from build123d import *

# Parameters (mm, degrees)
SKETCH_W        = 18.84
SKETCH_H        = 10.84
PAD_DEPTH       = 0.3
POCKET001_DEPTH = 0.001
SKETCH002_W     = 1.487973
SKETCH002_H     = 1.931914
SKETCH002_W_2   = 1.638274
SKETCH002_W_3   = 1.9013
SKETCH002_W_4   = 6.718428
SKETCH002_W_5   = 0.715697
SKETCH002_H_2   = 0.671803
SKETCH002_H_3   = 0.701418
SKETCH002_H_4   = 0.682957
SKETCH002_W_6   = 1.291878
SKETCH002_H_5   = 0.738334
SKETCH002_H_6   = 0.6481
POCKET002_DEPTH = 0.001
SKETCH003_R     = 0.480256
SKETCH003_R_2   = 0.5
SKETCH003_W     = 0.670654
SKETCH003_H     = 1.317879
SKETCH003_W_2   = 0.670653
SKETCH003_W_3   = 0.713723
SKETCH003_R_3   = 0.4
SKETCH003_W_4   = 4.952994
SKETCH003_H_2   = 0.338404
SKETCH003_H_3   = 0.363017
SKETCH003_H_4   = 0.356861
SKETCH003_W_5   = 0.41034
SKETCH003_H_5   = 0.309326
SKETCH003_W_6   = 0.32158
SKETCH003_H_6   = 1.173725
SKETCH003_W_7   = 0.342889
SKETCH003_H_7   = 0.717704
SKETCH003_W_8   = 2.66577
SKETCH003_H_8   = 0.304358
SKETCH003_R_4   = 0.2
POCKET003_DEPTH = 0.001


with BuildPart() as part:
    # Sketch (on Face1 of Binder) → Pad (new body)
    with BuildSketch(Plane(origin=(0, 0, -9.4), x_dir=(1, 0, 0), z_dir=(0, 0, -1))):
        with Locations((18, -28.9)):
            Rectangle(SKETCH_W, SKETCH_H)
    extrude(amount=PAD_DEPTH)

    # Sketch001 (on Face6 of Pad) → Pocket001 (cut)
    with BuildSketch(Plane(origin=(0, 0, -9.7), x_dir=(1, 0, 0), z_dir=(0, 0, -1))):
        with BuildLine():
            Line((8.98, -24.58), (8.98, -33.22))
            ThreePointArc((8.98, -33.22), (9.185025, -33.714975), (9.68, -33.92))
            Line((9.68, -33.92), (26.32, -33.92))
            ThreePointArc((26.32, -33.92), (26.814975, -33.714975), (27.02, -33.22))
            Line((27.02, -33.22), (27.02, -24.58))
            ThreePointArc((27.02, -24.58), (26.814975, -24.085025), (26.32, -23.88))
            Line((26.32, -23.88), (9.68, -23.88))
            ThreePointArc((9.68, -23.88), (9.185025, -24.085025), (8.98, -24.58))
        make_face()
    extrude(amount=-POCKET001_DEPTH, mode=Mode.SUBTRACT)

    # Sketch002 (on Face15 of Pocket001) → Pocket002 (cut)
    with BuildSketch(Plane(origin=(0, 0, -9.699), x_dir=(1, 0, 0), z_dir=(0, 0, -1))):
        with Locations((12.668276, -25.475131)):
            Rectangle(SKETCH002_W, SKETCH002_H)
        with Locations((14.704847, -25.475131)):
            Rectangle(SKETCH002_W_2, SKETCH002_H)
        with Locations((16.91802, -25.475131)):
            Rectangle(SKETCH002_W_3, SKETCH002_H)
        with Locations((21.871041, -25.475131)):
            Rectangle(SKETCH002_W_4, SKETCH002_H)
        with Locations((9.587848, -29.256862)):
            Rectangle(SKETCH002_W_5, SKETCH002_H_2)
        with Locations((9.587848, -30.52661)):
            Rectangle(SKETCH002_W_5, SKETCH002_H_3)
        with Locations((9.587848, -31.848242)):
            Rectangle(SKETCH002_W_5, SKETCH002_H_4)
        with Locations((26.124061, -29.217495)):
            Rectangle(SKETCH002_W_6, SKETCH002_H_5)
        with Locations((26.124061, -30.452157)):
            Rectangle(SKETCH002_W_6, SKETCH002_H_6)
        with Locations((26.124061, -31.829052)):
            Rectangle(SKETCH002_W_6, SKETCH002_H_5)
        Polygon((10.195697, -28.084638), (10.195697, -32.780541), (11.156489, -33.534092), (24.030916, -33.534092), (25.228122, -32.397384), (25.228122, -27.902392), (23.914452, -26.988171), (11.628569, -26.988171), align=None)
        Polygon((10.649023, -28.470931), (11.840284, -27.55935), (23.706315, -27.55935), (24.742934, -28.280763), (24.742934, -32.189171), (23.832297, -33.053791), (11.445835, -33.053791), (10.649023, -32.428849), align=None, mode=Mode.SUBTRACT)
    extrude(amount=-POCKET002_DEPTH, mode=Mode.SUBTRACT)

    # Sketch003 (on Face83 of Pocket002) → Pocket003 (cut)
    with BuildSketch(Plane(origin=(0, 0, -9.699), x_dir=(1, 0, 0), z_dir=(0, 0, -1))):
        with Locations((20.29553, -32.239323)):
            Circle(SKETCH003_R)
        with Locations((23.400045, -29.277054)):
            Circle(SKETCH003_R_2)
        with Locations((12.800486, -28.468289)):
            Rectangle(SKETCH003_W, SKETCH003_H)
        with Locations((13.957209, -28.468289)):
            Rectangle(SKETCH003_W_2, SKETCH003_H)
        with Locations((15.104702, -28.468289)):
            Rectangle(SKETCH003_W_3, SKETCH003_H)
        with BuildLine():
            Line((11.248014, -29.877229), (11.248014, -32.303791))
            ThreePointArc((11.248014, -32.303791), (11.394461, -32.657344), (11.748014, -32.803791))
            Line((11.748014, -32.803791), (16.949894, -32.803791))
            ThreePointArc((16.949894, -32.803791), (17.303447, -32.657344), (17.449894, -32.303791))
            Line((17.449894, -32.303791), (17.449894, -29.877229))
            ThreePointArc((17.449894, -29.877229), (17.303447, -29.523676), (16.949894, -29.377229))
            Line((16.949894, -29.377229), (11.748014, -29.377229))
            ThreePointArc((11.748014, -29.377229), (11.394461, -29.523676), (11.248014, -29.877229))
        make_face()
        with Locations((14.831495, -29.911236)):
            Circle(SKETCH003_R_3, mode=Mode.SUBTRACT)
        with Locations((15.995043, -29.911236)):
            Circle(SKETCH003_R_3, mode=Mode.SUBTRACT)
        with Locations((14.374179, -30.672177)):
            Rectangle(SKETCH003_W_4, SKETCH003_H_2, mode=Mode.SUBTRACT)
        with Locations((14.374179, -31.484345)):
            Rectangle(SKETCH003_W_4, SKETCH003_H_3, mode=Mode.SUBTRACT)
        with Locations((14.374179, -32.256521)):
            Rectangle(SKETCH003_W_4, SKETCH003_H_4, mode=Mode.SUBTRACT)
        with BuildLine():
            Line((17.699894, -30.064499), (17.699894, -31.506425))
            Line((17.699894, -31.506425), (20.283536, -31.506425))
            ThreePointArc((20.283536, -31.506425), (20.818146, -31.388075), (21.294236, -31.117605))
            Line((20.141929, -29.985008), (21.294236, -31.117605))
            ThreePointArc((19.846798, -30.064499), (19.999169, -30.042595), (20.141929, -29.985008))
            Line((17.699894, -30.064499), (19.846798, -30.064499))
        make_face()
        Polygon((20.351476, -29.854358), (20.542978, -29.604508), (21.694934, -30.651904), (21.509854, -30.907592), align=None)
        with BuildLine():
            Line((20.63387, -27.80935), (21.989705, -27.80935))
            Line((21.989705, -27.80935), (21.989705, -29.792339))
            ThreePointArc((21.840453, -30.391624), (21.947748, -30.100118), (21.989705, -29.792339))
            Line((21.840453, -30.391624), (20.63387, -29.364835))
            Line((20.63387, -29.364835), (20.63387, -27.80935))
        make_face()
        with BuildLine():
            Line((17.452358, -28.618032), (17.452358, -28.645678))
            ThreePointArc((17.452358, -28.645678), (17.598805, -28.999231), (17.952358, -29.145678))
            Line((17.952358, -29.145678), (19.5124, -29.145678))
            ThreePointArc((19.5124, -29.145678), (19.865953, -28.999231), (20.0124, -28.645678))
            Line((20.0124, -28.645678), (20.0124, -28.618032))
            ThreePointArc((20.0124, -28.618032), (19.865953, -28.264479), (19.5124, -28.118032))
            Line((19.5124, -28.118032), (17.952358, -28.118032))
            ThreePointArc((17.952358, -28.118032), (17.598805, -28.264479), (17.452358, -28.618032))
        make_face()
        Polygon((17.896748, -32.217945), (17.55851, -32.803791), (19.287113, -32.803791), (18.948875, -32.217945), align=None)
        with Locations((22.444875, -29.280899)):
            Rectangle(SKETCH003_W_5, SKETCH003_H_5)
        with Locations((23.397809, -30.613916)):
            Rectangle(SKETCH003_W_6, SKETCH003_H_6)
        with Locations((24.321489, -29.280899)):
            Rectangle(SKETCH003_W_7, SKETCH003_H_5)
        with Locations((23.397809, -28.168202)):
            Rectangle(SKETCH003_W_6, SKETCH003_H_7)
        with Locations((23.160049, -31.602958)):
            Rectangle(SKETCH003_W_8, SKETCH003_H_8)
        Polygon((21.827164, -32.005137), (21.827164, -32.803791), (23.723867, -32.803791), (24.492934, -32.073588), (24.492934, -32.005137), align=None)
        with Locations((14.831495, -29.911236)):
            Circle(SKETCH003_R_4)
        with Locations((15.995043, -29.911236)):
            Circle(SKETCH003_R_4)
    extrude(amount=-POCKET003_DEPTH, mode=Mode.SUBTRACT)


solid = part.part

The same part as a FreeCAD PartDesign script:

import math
import FreeCAD as App
import Part
import Sketcher

V = App.Vector

doc = App.newDocument("Part")
body = doc.addObject("PartDesign::Body", "Body")

# Sketch on XY plane
sketch1 = body.newObject("Sketcher::SketchObject", "Sketch")
sketch1.AttachmentSupport = (doc.getObject("XY_Plane"), [""])
sketch1.MapMode = "FlatFace"
sketch1.AttachmentOffset = App.Placement(V(0, 0, -9.4), App.Rotation())
sketch1.addGeometry([
    Part.LineSegment(V(8.58, 23.48, 0), V(8.58, 34.32, 0)),
    Part.LineSegment(V(8.58, 34.32, 0), V(27.42, 34.32, 0)),
    Part.LineSegment(V(27.42, 34.32, 0), V(27.42, 23.48, 0)),
    Part.LineSegment(V(27.42, 23.48, 0), V(8.58, 23.48, 0)),
], False)
sketch1.addConstraint([
    Sketcher.Constraint("Coincident", 0, 2, 1, 1),
    Sketcher.Constraint("Coincident", 1, 2, 2, 1),
    Sketcher.Constraint("Coincident", 2, 2, 3, 1),
    Sketcher.Constraint("Coincident", 3, 2, 0, 1),
    Sketcher.Constraint("Vertical", 0),
    Sketcher.Constraint("Horizontal", 1),
    Sketcher.Constraint("Vertical", 2),
    Sketcher.Constraint("Horizontal", 3),
    Sketcher.Constraint("DistanceX", 1, 1, 1, 2, 18.84),
    Sketcher.Constraint("DistanceY", 0, 1, 0, 2, 10.84),
    Sketcher.Constraint("DistanceX", -1, 1, 0, 2, 8.58),
    Sketcher.Constraint("DistanceY", -1, 1, 0, 2, 34.32),
])
pad1 = body.newObject("PartDesign::Pad", "Pad")
pad1.Profile = sketch1
pad1.Length = 0.3
pad1.Reversed = True

# Sketch on XY plane
sketch2 = body.newObject("Sketcher::SketchObject", "Sketch001")
sketch2.AttachmentSupport = (doc.getObject("XY_Plane"), [""])
sketch2.MapMode = "FlatFace"
sketch2.AttachmentOffset = App.Placement(V(0, 0, -9.7), App.Rotation())
sketch2.addGeometry([
    Part.LineSegment(V(8.98, 24.58, 0), V(8.98, 33.22, 0)),  # 0
    Part.ArcOfCircle(Part.Circle(V(9.679999, 33.220001, 0), V(0, 0, 1), 0.699999), math.radians(89.999929), math.radians(180.000071)),  # 1
    Part.LineSegment(V(9.68, 33.92, 0), V(26.32, 33.92, 0)),  # 2
    Part.ArcOfCircle(Part.Circle(V(26.320001, 33.220001, 0), V(0, 0, 1), 0.699999), math.radians(-0.000071), math.radians(90.000071)),  # 3
    Part.LineSegment(V(27.02, 33.22, 0), V(27.02, 24.58, 0)),  # 4
    Part.ArcOfCircle(Part.Circle(V(26.320001, 24.579999, 0), V(0, 0, 1), 0.699999), math.radians(-90.000071), math.radians(0.000071)),  # 5
    Part.LineSegment(V(26.32, 23.88, 0), V(9.68, 23.88, 0)),  # 6
    Part.ArcOfCircle(Part.Circle(V(9.679999, 24.579999, 0), V(0, 0, 1), 0.699999), math.radians(179.999929), math.radians(270.000071)),  # 7
], False)
sketch2.addConstraint([
    Sketcher.Constraint("Tangent", 0, 2, 1, 2),
    Sketcher.Constraint("Tangent", 1, 1, 2, 1),
    Sketcher.Constraint("Tangent", 2, 2, 3, 2),
    Sketcher.Constraint("Tangent", 3, 1, 4, 1),
    Sketcher.Constraint("Tangent", 4, 2, 5, 2),
    Sketcher.Constraint("Tangent", 5, 1, 6, 1),
    Sketcher.Constraint("Tangent", 6, 2, 7, 2),
    Sketcher.Constraint("Tangent", 7, 1, 0, 1),
    Sketcher.Constraint("Vertical", 0),
    Sketcher.Constraint("Horizontal", 2),
    Sketcher.Constraint("Vertical", 4),
    Sketcher.Constraint("Horizontal", 6),
    Sketcher.Constraint("Equal", 1, 3),
    Sketcher.Constraint("Equal", 3, 5),
    Sketcher.Constraint("Equal", 5, 7),
    Sketcher.Constraint("Radius", 1, 0.699999),
    Sketcher.Constraint("DistanceX", 2, 1, 2, 2, 16.64),
    Sketcher.Constraint("DistanceY", 0, 1, 0, 2, 8.64),
    Sketcher.Constraint("DistanceX", -1, 1, 1, 3, 9.679999),
    Sketcher.Constraint("DistanceY", -1, 1, 1, 3, 33.220001),
])
pocket1 = body.newObject("PartDesign::Pocket", "Pocket")
pocket1.Profile = sketch2
pocket1.Length = 0.001
pocket1.Reversed = True

# Sketch on XY plane
sketch3 = body.newObject("Sketcher::SketchObject", "Sketch002")
sketch3.AttachmentSupport = (doc.getObject("XY_Plane"), [""])
sketch3.MapMode = "FlatFace"
sketch3.AttachmentOffset = App.Placement(V(0, 0, -9.699), App.Rotation())
sketch3.addGeometry([
    Part.LineSegment(V(11.92429, 24.509174, 0), V(11.92429, 26.441088, 0)),  # 0
    Part.LineSegment(V(11.92429, 26.441088, 0), V(13.412263, 26.441088, 0)),  # 1
    Part.LineSegment(V(13.412263, 26.441088, 0), V(13.412263, 24.509174, 0)),  # 2
    Part.LineSegment(V(13.412263, 24.509174, 0), V(11.92429, 24.509174, 0)),  # 3
    Part.LineSegment(V(13.88571, 24.509174, 0), V(13.88571, 26.441088, 0)),  # 4
    Part.LineSegment(V(13.88571, 26.441088, 0), V(15.523984, 26.441088, 0)),  # 5
    Part.LineSegment(V(15.523984, 26.441088, 0), V(15.523984, 24.509174, 0)),  # 6
    Part.LineSegment(V(15.523984, 24.509174, 0), V(13.88571, 24.509174, 0)),  # 7
    Part.LineSegment(V(15.96737, 24.509174, 0), V(15.96737, 26.441088, 0)),  # 8
    Part.LineSegment(V(15.96737, 26.441088, 0), V(17.86867, 26.441088, 0)),  # 9
    Part.LineSegment(V(17.86867, 26.441088, 0), V(17.86867, 24.509174, 0)),  # 10
    Part.LineSegment(V(17.86867, 24.509174, 0), V(15.96737, 24.509174, 0)),  # 11
    Part.LineSegment(V(18.511827, 24.509174, 0), V(18.511827, 26.441088, 0)),  # 12
    Part.LineSegment(V(18.511827, 26.441088, 0), V(25.230255, 26.441088, 0)),  # 13
    Part.LineSegment(V(25.230255, 26.441088, 0), V(25.230255, 24.509174, 0)),  # 14
    Part.LineSegment(V(25.230255, 24.509174, 0), V(18.511827, 24.509174, 0)),  # 15
    Part.LineSegment(V(9.229999, 28.92096, 0), V(9.229999, 29.592764, 0)),  # 16
    Part.LineSegment(V(9.229999, 29.592764, 0), V(9.945697, 29.592764, 0)),  # 17
    Part.LineSegment(V(9.945697, 29.592764, 0), V(9.945697, 28.92096, 0)),  # 18
    Part.LineSegment(V(9.945697, 28.92096, 0), V(9.229999, 28.92096, 0)),  # 19
    Part.LineSegment(V(9.229999, 30.175901, 0), V(9.229999, 30.877319, 0)),  # 20
    Part.LineSegment(V(9.229999, 30.877319, 0), V(9.945697, 30.877319, 0)),  # 21
    Part.LineSegment(V(9.945697, 30.877319, 0), V(9.945697, 30.175901, 0)),  # 22
    Part.LineSegment(V(9.945697, 30.175901, 0), V(9.229999, 30.175901, 0)),  # 23
    Part.LineSegment(V(9.229999, 31.506764, 0), V(9.229999, 32.18972, 0)),  # 24
    Part.LineSegment(V(9.229999, 32.18972, 0), V(9.945697, 32.18972, 0)),  # 25
    Part.LineSegment(V(9.945697, 32.18972, 0), V(9.945697, 31.506764, 0)),  # 26
    Part.LineSegment(V(9.945697, 31.506764, 0), V(9.229999, 31.506764, 0)),  # 27
    Part.LineSegment(V(25.478122, 28.848328, 0), V(25.478122, 29.586662, 0)),  # 28
    Part.LineSegment(V(25.478122, 29.586662, 0), V(26.77, 29.586662, 0)),  # 29
    Part.LineSegment(V(26.77, 29.586662, 0), V(26.77, 28.848328, 0)),  # 30
    Part.LineSegment(V(26.77, 28.848328, 0), V(25.478122, 28.848328, 0)),  # 31
    Part.LineSegment(V(25.478122, 30.128107, 0), V(25.478122, 30.776207, 0)),  # 32
    Part.LineSegment(V(25.478122, 30.776207, 0), V(26.77, 30.776207, 0)),  # 33
    Part.LineSegment(V(26.77, 30.776207, 0), V(26.77, 30.128107, 0)),  # 34
    Part.LineSegment(V(26.77, 30.128107, 0), V(25.478122, 30.128107, 0)),  # 35
    Part.LineSegment(V(25.478122, 31.459885, 0), V(25.478122, 32.198219, 0)),  # 36
    Part.LineSegment(V(25.478122, 32.198219, 0), V(26.77, 32.198219, 0)),  # 37
    Part.LineSegment(V(26.77, 32.198219, 0), V(26.77, 31.459885, 0)),  # 38
    Part.LineSegment(V(26.77, 31.459885, 0), V(25.478122, 31.459885, 0)),  # 39
    Part.LineSegment(V(10.195697, 28.084638, 0), V(10.195697, 32.780541, 0)),  # 40
    Part.LineSegment(V(10.195697, 32.780541, 0), V(11.156489, 33.534092, 0)),  # 41
    Part.LineSegment(V(11.156489, 33.534092, 0), V(24.030916, 33.534092, 0)),  # 42
    Part.LineSegment(V(24.030916, 33.534092, 0), V(25.228122, 32.397384, 0)),  # 43
    Part.LineSegment(V(25.228122, 32.397384, 0), V(25.228122, 27.902392, 0)),  # 44
    Part.LineSegment(V(25.228122, 27.902392, 0), V(23.914452, 26.988171, 0)),  # 45
    Part.LineSegment(V(23.914452, 26.988171, 0), V(11.628569, 26.988171, 0)),  # 46
    Part.LineSegment(V(11.628569, 26.988171, 0), V(10.195697, 28.084638, 0)),  # 47
    Part.LineSegment(V(10.649023, 32.428849, 0), V(10.649023, 28.470931, 0)),  # 48
    Part.LineSegment(V(10.649023, 28.470931, 0), V(11.840284, 27.55935, 0)),  # 49
    Part.LineSegment(V(11.840284, 27.55935, 0), V(23.706315, 27.55935, 0)),  # 50
    Part.LineSegment(V(23.706315, 27.55935, 0), V(24.742934, 28.280763, 0)),  # 51
    Part.LineSegment(V(24.742934, 28.280763, 0), V(24.742934, 32.189171, 0)),  # 52
    Part.LineSegment(V(24.742934, 32.189171, 0), V(23.832297, 33.053791, 0)),  # 53
    Part.LineSegment(V(23.832297, 33.053791, 0), V(11.445835, 33.053791, 0)),  # 54
    Part.LineSegment(V(11.445835, 33.053791, 0), V(10.649023, 32.428849, 0)),  # 55
], False)
sketch3.addConstraint([
    Sketcher.Constraint("Coincident", 0, 2, 1, 1),
    Sketcher.Constraint("Coincident", 1, 2, 2, 1),
    Sketcher.Constraint("Coincident", 2, 2, 3, 1),
    Sketcher.Constraint("Coincident", 3, 2, 0, 1),
    Sketcher.Constraint("Coincident", 4, 2, 5, 1),
    Sketcher.Constraint("Coincident", 5, 2, 6, 1),
    Sketcher.Constraint("Coincident", 6, 2, 7, 1),
    Sketcher.Constraint("Coincident", 7, 2, 4, 1),
    Sketcher.Constraint("Coincident", 8, 2, 9, 1),
    Sketcher.Constraint("Coincident", 9, 2, 10, 1),
    Sketcher.Constraint("Coincident", 10, 2, 11, 1),
    Sketcher.Constraint("Coincident", 11, 2, 8, 1),
    Sketcher.Constraint("Coincident", 12, 2, 13, 1),
    Sketcher.Constraint("Coincident", 13, 2, 14, 1),
    Sketcher.Constraint("Coincident", 14, 2, 15, 1),
    Sketcher.Constraint("Coincident", 15, 2, 12, 1),
    Sketcher.Constraint("Coincident", 16, 2, 17, 1),
    Sketcher.Constraint("Coincident", 17, 2, 18, 1),
    Sketcher.Constraint("Coincident", 18, 2, 19, 1),
    Sketcher.Constraint("Coincident", 19, 2, 16, 1),
    Sketcher.Constraint("Coincident", 20, 2, 21, 1),
    Sketcher.Constraint("Coincident", 21, 2, 22, 1),
    Sketcher.Constraint("Coincident", 22, 2, 23, 1),
    Sketcher.Constraint("Coincident", 23, 2, 20, 1),
    Sketcher.Constraint("Coincident", 24, 2, 25, 1),
    Sketcher.Constraint("Coincident", 25, 2, 26, 1),
    Sketcher.Constraint("Coincident", 26, 2, 27, 1),
    Sketcher.Constraint("Coincident", 27, 2, 24, 1),
    Sketcher.Constraint("Coincident", 28, 2, 29, 1),
    Sketcher.Constraint("Coincident", 29, 2, 30, 1),
    Sketcher.Constraint("Coincident", 30, 2, 31, 1),
    Sketcher.Constraint("Coincident", 31, 2, 28, 1),
    Sketcher.Constraint("Coincident", 32, 2, 33, 1),
    Sketcher.Constraint("Coincident", 33, 2, 34, 1),
    Sketcher.Constraint("Coincident", 34, 2, 35, 1),
    Sketcher.Constraint("Coincident", 35, 2, 32, 1),
    Sketcher.Constraint("Coincident", 36, 2, 37, 1),
    Sketcher.Constraint("Coincident", 37, 2, 38, 1),
    Sketcher.Constraint("Coincident", 38, 2, 39, 1),
    Sketcher.Constraint("Coincident", 39, 2, 36, 1),
    Sketcher.Constraint("Coincident", 40, 2, 41, 1),
    Sketcher.Constraint("Coincident", 41, 2, 42, 1),
    Sketcher.Constraint("Coincident", 42, 2, 43, 1),
    Sketcher.Constraint("Coincident", 43, 2, 44, 1),
    Sketcher.Constraint("Coincident", 44, 2, 45, 1),
    Sketcher.Constraint("Coincident", 45, 2, 46, 1),
    Sketcher.Constraint("Coincident", 46, 2, 47, 1),
    Sketcher.Constraint("Coincident", 47, 2, 40, 1),
    Sketcher.Constraint("Coincident", 48, 2, 49, 1),
    Sketcher.Constraint("Coincident", 49, 2, 50, 1),
    Sketcher.Constraint("Coincident", 50, 2, 51, 1),
    Sketcher.Constraint("Coincident", 51, 2, 52, 1),
    Sketcher.Constraint("Coincident", 52, 2, 53, 1),
    Sketcher.Constraint("Coincident", 53, 2, 54, 1),
    Sketcher.Constraint("Coincident", 54, 2, 55, 1),
    Sketcher.Constraint("Coincident", 55, 2, 48, 1),
    Sketcher.Constraint("Vertical", 0),
    Sketcher.Constraint("Horizontal", 1),
    Sketcher.Constraint("Vertical", 2),
    Sketcher.Constraint("Horizontal", 3),
    Sketcher.Constraint("Vertical", 4),
    Sketcher.Constraint("Horizontal", 5),
    Sketcher.Constraint("Vertical", 6),
    Sketcher.Constraint("Horizontal", 7),
    Sketcher.Constraint("Vertical", 8),
    Sketcher.Constraint("Horizontal", 9),
    Sketcher.Constraint("Vertical", 10),
    Sketcher.Constraint("Horizontal", 11),
    Sketcher.Constraint("Vertical", 12),
    Sketcher.Constraint("Horizontal", 13),
    Sketcher.Constraint("Vertical", 14),
    Sketcher.Constraint("Horizontal", 15),
    Sketcher.Constraint("Vertical", 16),
    Sketcher.Constraint("Horizontal", 17),
    Sketcher.Constraint("Vertical", 18),
    Sketcher.Constraint("Horizontal", 19),
    Sketcher.Constraint("Vertical", 20),
    Sketcher.Constraint("Horizontal", 21),
    Sketcher.Constraint("Vertical", 22),
    Sketcher.Constraint("Horizontal", 23),
    Sketcher.Constraint("Vertical", 24),
    Sketcher.Constraint("Horizontal", 25),
    Sketcher.Constraint("Vertical", 26),
    Sketcher.Constraint("Horizontal", 27),
    Sketcher.Constraint("Vertical", 28),
    Sketcher.Constraint("Horizontal", 29),
    Sketcher.Constraint("Vertical", 30),
    Sketcher.Constraint("Horizontal", 31),
    Sketcher.Constraint("Vertical", 32),
    Sketcher.Constraint("Horizontal", 33),
    Sketcher.Constraint("Vertical", 34),
    Sketcher.Constraint("Horizontal", 35),
    Sketcher.Constraint("Vertical", 36),
    Sketcher.Constraint("Horizontal", 37),
    Sketcher.Constraint("Vertical", 38),
    Sketcher.Constraint("Horizontal", 39),
    Sketcher.Constraint("Vertical", 40),
    Sketcher.Constraint("Horizontal", 42),
    Sketcher.Constraint("Vertical", 44),
    Sketcher.Constraint("Horizontal", 46),
    Sketcher.Constraint("Vertical", 48),
    Sketcher.Constraint("Horizontal", 50),
    Sketcher.Constraint("Vertical", 52),
    Sketcher.Constraint("Horizontal", 54),
    Sketcher.Constraint("Parallel", 47, 49),
    Sketcher.Constraint("Parallel", 45, 51),
    Sketcher.Constraint("Parallel", 43, 53),
    Sketcher.Constraint("Parallel", 41, 55),
    Sketcher.Constraint("Horizontal", 1, 2, 4, 2),
    Sketcher.Constraint("Horizontal", 3, 2, 6, 2),
    Sketcher.Constraint("Horizontal", 5, 2, 8, 2),
    Sketcher.Constraint("Horizontal", 7, 2, 10, 2),
    Sketcher.Constraint("Horizontal", 9, 2, 12, 2),
    Sketcher.Constraint("Horizontal", 11, 2, 14, 2),
    Sketcher.Constraint("Vertical", 19, 2, 20, 2),
    Sketcher.Constraint("Vertical", 18, 2, 21, 2),
    Sketcher.Constraint("Vertical", 23, 2, 24, 2),
    Sketcher.Constraint("Vertical", 22, 2, 25, 2),
    Sketcher.Constraint("Vertical", 31, 2, 32, 2),
    Sketcher.Constraint("Vertical", 30, 2, 33, 2),
    Sketcher.Constraint("Vertical", 35, 2, 36, 2),
    Sketcher.Constraint("Vertical", 34, 2, 37, 2),
    Sketcher.Constraint("Equal", 30, 36),
    Sketcher.Constraint("DistanceX", -1, 1, 16, 2, 9.229999),
    Sketcher.Constraint("DistanceX", -1, 1, 29, 2, 26.77),
    Sketcher.Constraint("DistanceX", 25, 2, 40, 2, 0.25),
    Sketcher.Constraint("DistanceX", 43, 2, 36, 2, 0.25),
    Sketcher.Constraint("DistanceX", 9, 1, 9, 2, 1.9013),
    Sketcher.Constraint("DistanceY", 32, 1, 32, 2, 0.6481),
    Sketcher.Constraint("DistanceX", 29, 1, 29, 2, 1.291878),
    Sketcher.Constraint("DistanceX", 50, 1, 50, 2, 11.866031),
    Sketcher.Constraint("DistanceY", 20, 1, 20, 2, 0.701418),
    Sketcher.Constraint("DistanceY", 52, 1, 52, 2, 3.908408),
    Sketcher.Constraint("DistanceY", -1, 1, 22, 2, 30.175901),
    Sketcher.Constraint("DistanceY", 20, 2, 24, 2, 1.312401),
    Sketcher.Constraint("DistanceY", 39, 2, 43, 2, 0.937499),
    Sketcher.Constraint("DistanceY", 51, 2, 28, 2, 1.305899),
    Sketcher.Constraint("DistanceY", 53, 2, 42, 2, 0.480301),
    Sketcher.Constraint("Distance", 41, 1.221049),
    Sketcher.Constraint("Distance", 43, 1.650881),
    Sketcher.Constraint("Distance", 51, 1.262939),
    Sketcher.Constraint("Distance", 55, 1.012651),
    Sketcher.Constraint("DistanceX", 1, 1, 1, 2, 1.487973),
    Sketcher.Constraint("DistanceX", 5, 1, 5, 2, 1.638274),
    Sketcher.Constraint("DistanceX", 13, 1, 13, 2, 6.718428),
    Sketcher.Constraint("DistanceX", 17, 1, 17, 2, 0.715697),
    Sketcher.Constraint("DistanceX", 42, 1, 42, 2, 12.874427),
    Sketcher.Constraint("DistanceX", 46, 2, 46, 1, 12.285883),
    Sketcher.Constraint("DistanceX", 54, 2, 54, 1, 12.386462),
    Sketcher.Constraint("DistanceY", 0, 1, 0, 2, 1.931914),
    Sketcher.Constraint("DistanceY", 16, 1, 16, 2, 0.671803),
    Sketcher.Constraint("DistanceY", 24, 1, 24, 2, 0.682957),
    Sketcher.Constraint("DistanceY", 28, 1, 28, 2, 0.738334),
    Sketcher.Constraint("DistanceY", 40, 1, 40, 2, 4.695903),
    Sketcher.Constraint("DistanceY", 44, 2, 44, 1, 4.494992),
    Sketcher.Constraint("DistanceY", 48, 2, 48, 1, 3.957918),
    Sketcher.Constraint("DistanceX", -1, 1, 0, 2, 11.92429),
    Sketcher.Constraint("DistanceY", -1, 1, 0, 2, 26.441088),
    Sketcher.Constraint("DistanceX", -1, 1, 4, 2, 13.88571),
    Sketcher.Constraint("DistanceX", -1, 1, 8, 2, 15.96737),
    Sketcher.Constraint("DistanceY", -1, 1, 18, 2, 28.92096),
    Sketcher.Constraint("DistanceY", -1, 1, 36, 2, 32.198219),
    Sketcher.Constraint("DistanceY", -1, 1, 40, 2, 32.780541),
    Sketcher.Constraint("DistanceY", -1, 1, 45, 2, 26.988171),
    Sketcher.Constraint("DistanceX", -1, 1, 46, 2, 11.628569),
    Sketcher.Constraint("DistanceY", 31, 2, 32, 2, 1.927879),
    Sketcher.Constraint("DistanceX", 49, 2, 1, 2, 1.571979),
    Sketcher.Constraint("DistanceX", 50, 2, 13, 2, 1.52394),
])
pocket2 = body.newObject("PartDesign::Pocket", "Pocket001")
pocket2.Profile = sketch3
pocket2.Length = 0.001
pocket2.Reversed = True

# Sketch on XY plane
sketch4 = body.newObject("Sketcher::SketchObject", "Sketch003")
sketch4.AttachmentSupport = (doc.getObject("XY_Plane"), [""])
sketch4.MapMode = "FlatFace"
sketch4.AttachmentOffset = App.Placement(V(0, 0, -9.699), App.Rotation())
sketch4.addGeometry([
    Part.Circle(V(20.29553, 32.239323, 0), V(0, 0, 1), 0.480256),  # 0
    Part.Circle(V(23.400045, 29.277054, 0), V(0, 0, 1), 0.5),  # 1
    Part.LineSegment(V(12.465159, 27.809349, 0), V(12.465159, 29.127229, 0)),  # 2
    Part.LineSegment(V(12.465159, 29.127229, 0), V(13.135813, 29.127229, 0)),  # 3
    Part.LineSegment(V(13.135813, 29.127229, 0), V(13.135813, 27.809349, 0)),  # 4
    Part.LineSegment(V(13.135813, 27.809349, 0), V(12.465159, 27.809349, 0)),  # 5
    Part.LineSegment(V(13.621882, 27.809349, 0), V(13.621882, 29.127229, 0)),  # 6
    Part.LineSegment(V(13.621882, 29.127229, 0), V(14.292535, 29.127229, 0)),  # 7
    Part.LineSegment(V(14.292535, 29.127229, 0), V(14.292535, 27.809349, 0)),  # 8
    Part.LineSegment(V(14.292535, 27.809349, 0), V(13.621882, 27.809349, 0)),  # 9
    Part.LineSegment(V(14.747841, 27.809349, 0), V(14.747841, 29.127229, 0)),  # 10
    Part.LineSegment(V(14.747841, 29.127229, 0), V(15.461564, 29.127229, 0)),  # 11
    Part.LineSegment(V(15.461564, 29.127229, 0), V(15.461564, 27.809349, 0)),  # 12
    Part.LineSegment(V(15.461564, 27.809349, 0), V(14.747841, 27.809349, 0)),  # 13
    Part.LineSegment(V(11.248014, 29.877229, 0), V(11.248014, 32.303791, 0)),  # 14
    Part.ArcOfCircle(Part.Circle(V(11.748015, 32.30379, 0), V(0, 0, 1), 0.500001), math.radians(90.000153), math.radians(179.999847)),  # 15
    Part.LineSegment(V(11.748014, 32.803791, 0), V(16.949894, 32.803791, 0)),  # 16
    Part.ArcOfCircle(Part.Circle(V(16.949893, 32.30379, 0), V(0, 0, 1), 0.500001), math.radians(0.000153), math.radians(89.999847)),  # 17
    Part.LineSegment(V(17.449894, 32.303791, 0), V(17.449894, 29.877229, 0)),  # 18
    Part.ArcOfCircle(Part.Circle(V(16.949893, 29.87723, 0), V(0, 0, 1), 0.500001), math.radians(-89.999847), math.radians(-0.000153)),  # 19
    Part.LineSegment(V(16.949894, 29.377229, 0), V(11.748014, 29.377229, 0)),  # 20
    Part.ArcOfCircle(Part.Circle(V(11.748015, 29.87723, 0), V(0, 0, 1), 0.500001), math.radians(-179.999847), math.radians(-90.000153)),  # 21
    Part.LineSegment(V(16.850676, 32.434951, 0), V(11.897682, 32.434951, 0)),  # 22
    Part.LineSegment(V(11.897682, 32.434951, 0), V(11.897682, 32.078091, 0)),  # 23
    Part.LineSegment(V(11.897682, 32.078091, 0), V(16.850676, 32.078091, 0)),  # 24
    Part.LineSegment(V(16.850676, 32.078091, 0), V(16.850676, 32.434951, 0)),  # 25
    Part.LineSegment(V(16.850676, 31.665854, 0), V(11.897682, 31.665854, 0)),  # 26
    Part.LineSegment(V(11.897682, 31.665854, 0), V(11.897682, 31.302837, 0)),  # 27
    Part.LineSegment(V(11.897682, 31.302837, 0), V(16.850676, 31.302837, 0)),  # 28
    Part.LineSegment(V(16.850676, 31.302837, 0), V(16.850676, 31.665854, 0)),  # 29
    Part.LineSegment(V(16.850676, 30.841379, 0), V(11.897682, 30.841379, 0)),  # 30
    Part.LineSegment(V(11.897682, 30.841379, 0), V(11.897682, 30.502975, 0)),  # 31
    Part.LineSegment(V(11.897682, 30.502975, 0), V(16.850676, 30.502975, 0)),  # 32
    Part.LineSegment(V(16.850676, 30.502975, 0), V(16.850676, 30.841379, 0)),  # 33
    Part.Circle(V(14.831495, 29.911236, 0), V(0, 0, 1), 0.4),  # 34
    Part.Circle(V(15.995043, 29.911236, 0), V(0, 0, 1), 0.4),  # 35
    Part.LineSegment(V(17.699894, 30.064499, 0), V(17.699894, 31.506425, 0)),  # 36
    Part.LineSegment(V(17.699894, 31.506425, 0), V(20.283536, 31.506425, 0)),  # 37
    Part.ArcOfCircle(Part.Circle(V(20.157675, 29.671244, 0), V(0, 0, 1), 1.839492), math.radians(51.839492), math.radians(86.076673)),  # 38
    Part.LineSegment(V(21.294236, 31.117605, 0), V(20.141929, 29.985008, 0)),  # 39
    Part.ArcOfCircle(Part.Circle(V(19.832401, 29.423424, 0), V(0, 0, 1), 0.641237), math.radians(61.137752), math.radians(88.71345)),  # 40
    Part.LineSegment(V(19.846798, 30.064499, 0), V(17.699894, 30.064499, 0)),  # 41
    Part.LineSegment(V(20.542978, 29.604508, 0), V(20.351476, 29.854358, 0)),  # 42
    Part.LineSegment(V(20.351476, 29.854358, 0), V(21.509854, 30.907592, 0)),  # 43
    Part.LineSegment(V(21.509854, 30.907592, 0), V(21.694934, 30.651904, 0)),  # 44
    Part.LineSegment(V(21.694934, 30.651904, 0), V(20.542978, 29.604508, 0)),  # 45
    Part.LineSegment(V(21.989705, 27.80935, 0), V(20.63387, 27.80935, 0)),  # 46
    Part.LineSegment(V(20.63387, 27.80935, 0), V(20.63387, 29.364835, 0)),  # 47
    Part.LineSegment(V(20.63387, 29.364835, 0), V(21.840453, 30.391624, 0)),  # 48
    Part.ArcOfCircle(Part.Circle(V(20.557245, 29.753813, 0), V(0, 0, 1), 1.432978), math.radians(1.54061), math.radians(26.429409)),  # 49
    Part.LineSegment(V(21.989705, 29.792339, 0), V(21.989705, 27.80935, 0)),  # 50
    Part.LineSegment(V(17.452358, 28.618032, 0), V(17.452358, 28.645678, 0)),  # 51
    Part.ArcOfCircle(Part.Circle(V(17.952359, 28.645677, 0), V(0, 0, 1), 0.500001), math.radians(90.000153), math.radians(179.999847)),  # 52
    Part.LineSegment(V(17.952358, 29.145678, 0), V(19.5124, 29.145678, 0)),  # 53
    Part.ArcOfCircle(Part.Circle(V(19.512399, 28.645677, 0), V(0, 0, 1), 0.500001), math.radians(0.000153), math.radians(89.999847)),  # 54
    Part.LineSegment(V(20.0124, 28.645678, 0), V(20.0124, 28.618032, 0)),  # 55
    Part.ArcOfCircle(Part.Circle(V(19.512399, 28.618033, 0), V(0, 0, 1), 0.500001), math.radians(-89.999847), math.radians(-0.000153)),  # 56
    Part.LineSegment(V(19.5124, 28.118032, 0), V(17.952358, 28.118032, 0)),  # 57
    Part.ArcOfCircle(Part.Circle(V(17.952359, 28.618033, 0), V(0, 0, 1), 0.500001), math.radians(-179.999847), math.radians(-90.000153)),  # 58
    Part.LineSegment(V(17.896748, 32.217945, 0), V(17.55851, 32.803791, 0)),  # 59
    Part.LineSegment(V(17.55851, 32.803791, 0), V(19.287113, 32.803791, 0)),  # 60
    Part.LineSegment(V(19.287113, 32.803791, 0), V(18.948875, 32.217945, 0)),  # 61
    Part.LineSegment(V(18.948875, 32.217945, 0), V(17.896748, 32.217945, 0)),  # 62
    Part.LineSegment(V(22.239705, 29.126236, 0), V(22.239705, 29.435562, 0)),  # 63
    Part.LineSegment(V(22.239705, 29.435562, 0), V(22.650045, 29.435562, 0)),  # 64
    Part.LineSegment(V(22.650045, 29.435562, 0), V(22.650045, 29.126236, 0)),  # 65
    Part.LineSegment(V(22.650045, 29.126236, 0), V(22.239705, 29.126236, 0)),  # 66
    Part.LineSegment(V(23.237019, 30.027054, 0), V(23.237019, 31.200778, 0)),  # 67
    Part.LineSegment(V(23.237019, 31.200778, 0), V(23.558599, 31.200778, 0)),  # 68
    Part.LineSegment(V(23.558599, 31.200778, 0), V(23.558599, 30.027054, 0)),  # 69
    Part.LineSegment(V(23.558599, 30.027054, 0), V(23.237019, 30.027054, 0)),  # 70
    Part.LineSegment(V(24.150044, 29.126236, 0), V(24.150044, 29.435562, 0)),  # 71
    Part.LineSegment(V(24.150044, 29.435562, 0), V(24.492933, 29.435562, 0)),  # 72
    Part.LineSegment(V(24.492933, 29.435562, 0), V(24.492933, 29.126236, 0)),  # 73
    Part.LineSegment(V(24.492933, 29.126236, 0), V(24.150044, 29.126236, 0)),  # 74
    Part.LineSegment(V(23.237019, 27.80935, 0), V(23.237019, 28.527054, 0)),  # 75
    Part.LineSegment(V(23.237019, 28.527054, 0), V(23.558599, 28.527054, 0)),  # 76
    Part.LineSegment(V(23.558599, 28.527054, 0), V(23.558599, 27.80935, 0)),  # 77
    Part.LineSegment(V(23.558599, 27.80935, 0), V(23.237019, 27.80935, 0)),  # 78
    Part.LineSegment(V(21.827164, 31.450779, 0), V(21.827164, 31.755137, 0)),  # 79
    Part.LineSegment(V(21.827164, 31.755137, 0), V(24.492934, 31.755137, 0)),  # 80
    Part.LineSegment(V(24.492934, 31.755137, 0), V(24.492934, 31.450779, 0)),  # 81
    Part.LineSegment(V(24.492934, 31.450779, 0), V(21.827164, 31.450779, 0)),  # 82
    Part.LineSegment(V(21.827164, 32.005137, 0), V(21.827164, 32.803791, 0)),  # 83
    Part.LineSegment(V(21.827164, 32.803791, 0), V(23.723867, 32.803791, 0)),  # 84
    Part.LineSegment(V(23.723867, 32.803791, 0), V(24.492934, 32.073588, 0)),  # 85
    Part.LineSegment(V(24.492934, 32.073588, 0), V(24.492934, 32.005137, 0)),  # 86
    Part.LineSegment(V(24.492934, 32.005137, 0), V(21.827164, 32.005137, 0)),  # 87
    Part.Circle(V(14.831495, 29.911236, 0), V(0, 0, 1), 0.2),  # 88
    Part.Circle(V(15.995043, 29.911236, 0), V(0, 0, 1), 0.2),  # 89
], False)
sketch4.addConstraint([
    Sketcher.Constraint("Coincident", 2, 2, 3, 1),
    Sketcher.Constraint("Coincident", 3, 2, 4, 1),
    Sketcher.Constraint("Coincident", 4, 2, 5, 1),
    Sketcher.Constraint("Coincident", 5, 2, 2, 1),
    Sketcher.Constraint("Coincident", 6, 2, 7, 1),
    Sketcher.Constraint("Coincident", 7, 2, 8, 1),
    Sketcher.Constraint("Coincident", 8, 2, 9, 1),
    Sketcher.Constraint("Coincident", 9, 2, 6, 1),
    Sketcher.Constraint("Coincident", 10, 2, 11, 1),
    Sketcher.Constraint("Coincident", 11, 2, 12, 1),
    Sketcher.Constraint("Coincident", 12, 2, 13, 1),
    Sketcher.Constraint("Coincident", 13, 2, 10, 1),
    Sketcher.Constraint("Coincident", 14, 2, 15, 2),
    Sketcher.Constraint("Coincident", 15, 1, 16, 1),
    Sketcher.Constraint("Coincident", 16, 2, 17, 2),
    Sketcher.Constraint("Coincident", 17, 1, 18, 1),
    Sketcher.Constraint("Coincident", 18, 2, 19, 2),
    Sketcher.Constraint("Coincident", 19, 1, 20, 1),
    Sketcher.Constraint("Coincident", 20, 2, 21, 2),
    Sketcher.Constraint("Coincident", 21, 1, 14, 1),
    Sketcher.Constraint("Coincident", 22, 2, 23, 1),
    Sketcher.Constraint("Coincident", 23, 2, 24, 1),
    Sketcher.Constraint("Coincident", 24, 2, 25, 1),
    Sketcher.Constraint("Coincident", 25, 2, 22, 1),
    Sketcher.Constraint("Coincident", 26, 2, 27, 1),
    Sketcher.Constraint("Coincident", 27, 2, 28, 1),
    Sketcher.Constraint("Coincident", 28, 2, 29, 1),
    Sketcher.Constraint("Coincident", 29, 2, 26, 1),
    Sketcher.Constraint("Coincident", 30, 2, 31, 1),
    Sketcher.Constraint("Coincident", 31, 2, 32, 1),
    Sketcher.Constraint("Coincident", 32, 2, 33, 1),
    Sketcher.Constraint("Coincident", 33, 2, 30, 1),
    Sketcher.Constraint("Coincident", 36, 2, 37, 1),
    Sketcher.Constraint("Coincident", 37, 2, 38, 2),
    Sketcher.Constraint("Coincident", 38, 1, 39, 1),
    Sketcher.Constraint("Coincident", 39, 2, 40, 1),
    Sketcher.Constraint("Coincident", 40, 2, 41, 1),
    Sketcher.Constraint("Coincident", 41, 2, 36, 1),
    Sketcher.Constraint("Coincident", 42, 2, 43, 1),
    Sketcher.Constraint("Coincident", 43, 2, 44, 1),
    Sketcher.Constraint("Coincident", 44, 2, 45, 1),
    Sketcher.Constraint("Coincident", 45, 2, 42, 1),
    Sketcher.Constraint("Coincident", 46, 2, 47, 1),
    Sketcher.Constraint("Coincident", 47, 2, 48, 1),
    Sketcher.Constraint("Coincident", 48, 2, 49, 2),
    Sketcher.Constraint("Coincident", 49, 1, 50, 1),
    Sketcher.Constraint("Coincident", 50, 2, 46, 1),
    Sketcher.Constraint("Coincident", 51, 2, 52, 2),
    Sketcher.Constraint("Coincident", 52, 1, 53, 1),
    Sketcher.Constraint("Coincident", 53, 2, 54, 2),
    Sketcher.Constraint("Coincident", 54, 1, 55, 1),
    Sketcher.Constraint("Coincident", 55, 2, 56, 2),
    Sketcher.Constraint("Coincident", 56, 1, 57, 1),
    Sketcher.Constraint("Coincident", 57, 2, 58, 2),
    Sketcher.Constraint("Coincident", 58, 1, 51, 1),
    Sketcher.Constraint("Coincident", 59, 2, 60, 1),
    Sketcher.Constraint("Coincident", 60, 2, 61, 1),
    Sketcher.Constraint("Coincident", 61, 2, 62, 1),
    Sketcher.Constraint("Coincident", 62, 2, 59, 1),
    Sketcher.Constraint("Coincident", 63, 2, 64, 1),
    Sketcher.Constraint("Coincident", 64, 2, 65, 1),
    Sketcher.Constraint("Coincident", 65, 2, 66, 1),
    Sketcher.Constraint("Coincident", 66, 2, 63, 1),
    Sketcher.Constraint("Coincident", 67, 2, 68, 1),
    Sketcher.Constraint("Coincident", 68, 2, 69, 1),
    Sketcher.Constraint("Coincident", 69, 2, 70, 1),
    Sketcher.Constraint("Coincident", 70, 2, 67, 1),
    Sketcher.Constraint("Coincident", 71, 2, 72, 1),
    Sketcher.Constraint("Coincident", 72, 2, 73, 1),
    Sketcher.Constraint("Coincident", 73, 2, 74, 1),
    Sketcher.Constraint("Coincident", 74, 2, 71, 1),
    Sketcher.Constraint("Coincident", 75, 2, 76, 1),
    Sketcher.Constraint("Coincident", 76, 2, 77, 1),
    Sketcher.Constraint("Coincident", 77, 2, 78, 1),
    Sketcher.Constraint("Coincident", 78, 2, 75, 1),
    Sketcher.Constraint("Coincident", 79, 2, 80, 1),
    Sketcher.Constraint("Coincident", 80, 2, 81, 1),
    Sketcher.Constraint("Coincident", 81, 2, 82, 1),
    Sketcher.Constraint("Coincident", 82, 2, 79, 1),
    Sketcher.Constraint("Coincident", 83, 2, 84, 1),
    Sketcher.Constraint("Coincident", 84, 2, 85, 1),
    Sketcher.Constraint("Coincident", 85, 2, 86, 1),
    Sketcher.Constraint("Coincident", 86, 2, 87, 1),
    Sketcher.Constraint("Coincident", 87, 2, 83, 1),
    Sketcher.Constraint("Vertical", 2),
    Sketcher.Constraint("Horizontal", 3),
    Sketcher.Constraint("Vertical", 4),
    Sketcher.Constraint("Horizontal", 5),
    Sketcher.Constraint("Vertical", 6),
    Sketcher.Constraint("Horizontal", 7),
    Sketcher.Constraint("Vertical", 8),
    Sketcher.Constraint("Horizontal", 9),
    Sketcher.Constraint("Vertical", 10),
    Sketcher.Constraint("Horizontal", 11),
    Sketcher.Constraint("Vertical", 12),
    Sketcher.Constraint("Horizontal", 13),
    Sketcher.Constraint("Vertical", 14),
    Sketcher.Constraint("Horizontal", 16),
    Sketcher.Constraint("Vertical", 18),
    Sketcher.Constraint("Horizontal", 20),
    Sketcher.Constraint("Horizontal", 22),
    Sketcher.Constraint("Vertical", 23),
    Sketcher.Constraint("Horizontal", 24),
    Sketcher.Constraint("Vertical", 25),
    Sketcher.Constraint("Horizontal", 26),
    Sketcher.Constraint("Vertical", 27),
    Sketcher.Constraint("Horizontal", 28),
    Sketcher.Constraint("Vertical", 29),
    Sketcher.Constraint("Horizontal", 30),
    Sketcher.Constraint("Vertical", 31),
    Sketcher.Constraint("Horizontal", 32),
    Sketcher.Constraint("Vertical", 33),
    Sketcher.Constraint("Vertical", 36),
    Sketcher.Constraint("Horizontal", 37),
    Sketcher.Constraint("Horizontal", 41),
    Sketcher.Constraint("Horizontal", 46),
    Sketcher.Constraint("Vertical", 47),
    Sketcher.Constraint("Vertical", 50),
    Sketcher.Constraint("Vertical", 51),
    Sketcher.Constraint("Horizontal", 53),
    Sketcher.Constraint("Vertical", 55),
    Sketcher.Constraint("Horizontal", 57),
    Sketcher.Constraint("Horizontal", 60),
    Sketcher.Constraint("Horizontal", 62),
    Sketcher.Constraint("Vertical", 63),
    Sketcher.Constraint("Horizontal", 64),
    Sketcher.Constraint("Vertical", 65),
    Sketcher.Constraint("Horizontal", 66),
    Sketcher.Constraint("Vertical", 67),
    Sketcher.Constraint("Horizontal", 68),
    Sketcher.Constraint("Vertical", 69),
    Sketcher.Constraint("Horizontal", 70),
    Sketcher.Constraint("Vertical", 71),
    Sketcher.Constraint("Horizontal", 72),
    Sketcher.Constraint("Vertical", 73),
    Sketcher.Constraint("Horizontal", 74),
    Sketcher.Constraint("Vertical", 75),
    Sketcher.Constraint("Horizontal", 76),
    Sketcher.Constraint("Vertical", 77),
    Sketcher.Constraint("Horizontal", 78),
    Sketcher.Constraint("Vertical", 79),
    Sketcher.Constraint("Horizontal", 80),
    Sketcher.Constraint("Vertical", 81),
    Sketcher.Constraint("Horizontal", 82),
    Sketcher.Constraint("Vertical", 83),
    Sketcher.Constraint("Horizontal", 84),
    Sketcher.Constraint("Vertical", 86),
    Sketcher.Constraint("Horizontal", 87),
    Sketcher.Constraint("Coincident", 88, 3, 34, 3),
    Sketcher.Constraint("Coincident", 89, 3, 35, 3),
    Sketcher.Constraint("Equal", 1, 15),
    Sketcher.Constraint("Equal", 15, 17),
    Sketcher.Constraint("Equal", 17, 19),
    Sketcher.Constraint("Equal", 19, 21),
    Sketcher.Constraint("Equal", 34, 35),
    Sketcher.Constraint("Equal", 21, 52),
    Sketcher.Constraint("Equal", 52, 54),
    Sketcher.Constraint("Equal", 54, 56),
    Sketcher.Constraint("Equal", 56, 58),
    Sketcher.Constraint("Equal", 88, 89),
    Sketcher.Constraint("Parallel", 43, 45),
    Sketcher.Constraint("Horizontal", 34, 3, 35, 3),
    Sketcher.Constraint("Horizontal", 3, 2, 6, 2),
    Sketcher.Constraint("Horizontal", 5, 2, 8, 2),
    Sketcher.Constraint("Horizontal", 7, 2, 10, 2),
    Sketcher.Constraint("Horizontal", 9, 2, 12, 2),
    Sketcher.Constraint("Horizontal", 17, 3, 14, 2),
    Sketcher.Constraint("Horizontal", 14, 2, 17, 1),
    Sketcher.Constraint("Horizontal", 21, 3, 18, 2),
    Sketcher.Constraint("Horizontal", 18, 2, 21, 1),
    Sketcher.Constraint("Horizontal", 13, 2, 46, 2),
    Sketcher.Constraint("Horizontal", 54, 3, 51, 2),
    Sketcher.Constraint("Horizontal", 51, 2, 54, 1),
    Sketcher.Constraint("Horizontal", 58, 3, 55, 2),
    Sketcher.Constraint("Horizontal", 55, 2, 58, 1),
    Sketcher.Constraint("Horizontal", 16, 2, 59, 2),
    Sketcher.Constraint("Horizontal", 64, 2, 71, 2),
    Sketcher.Constraint("Horizontal", 66, 2, 73, 2),
    Sketcher.Constraint("Horizontal", 50, 2, 77, 2),
    Sketcher.Constraint("Horizontal", 60, 2, 83, 2),
    Sketcher.Constraint("Vertical", 21, 3, 15, 1),
    Sketcher.Constraint("Vertical", 19, 3, 16, 2),
    Sketcher.Constraint("Vertical", 16, 2, 19, 1),
    Sketcher.Constraint("Vertical", 15, 1, 20, 2),
    Sketcher.Constraint("Vertical", 23, 2, 26, 2),
    Sketcher.Constraint("Vertical", 25, 2, 28, 2),
    Sketcher.Constraint("Vertical", 27, 2, 30, 2),
    Sketcher.Constraint("Vertical", 29, 2, 32, 2),
    Sketcher.Constraint("Vertical", 58, 3, 52, 1),
    Sketcher.Constraint("Vertical", 56, 3, 53, 2),
    Sketcher.Constraint("Vertical", 53, 2, 56, 1),
    Sketcher.Constraint("Vertical", 52, 1, 57, 2),
    Sketcher.Constraint("Vertical", 70, 2, 75, 2),
    Sketcher.Constraint("Vertical", 69, 2, 76, 2),
    Sketcher.Constraint("Vertical", 73, 2, 80, 2),
    Sketcher.Constraint("Vertical", 82, 2, 83, 2),
    Sketcher.Constraint("Vertical", 81, 2, 85, 2),
    Sketcher.Constraint("Equal", 5, 7),
    Sketcher.Constraint("Equal", 59, 61),
    Sketcher.Constraint("Diameter", 1, 1.0),
    Sketcher.Constraint("Diameter", 34, 0.8),
    Sketcher.Constraint("Diameter", 88, 0.4),
    Sketcher.Constraint("Radius", 49, 1.432978),
    Sketcher.Constraint("Diameter", 0, 0.960512),
    Sketcher.Constraint("Radius", 38, 1.839492),
    Sketcher.Constraint("Radius", 40, 0.641237),
    Sketcher.Constraint("Distance", 42, 0.314798),
    Sketcher.Constraint("Distance", 85, 1.0605),
    Sketcher.Constraint("DistanceX", 16, 1, 16, 2, 5.20188),
    Sketcher.Constraint("DistanceX", 53, 1, 53, 2, 1.560042),
    Sketcher.Constraint("DistanceX", 64, 1, 64, 2, 0.41034),
    Sketcher.Constraint("DistanceX", 68, 1, 68, 2, 0.32158),
    Sketcher.Constraint("DistanceX", 72, 1, 72, 2, 0.342889),
    Sketcher.Constraint("DistanceX", 80, 1, 80, 2, 2.66577),
    Sketcher.Constraint("DistanceY", 2, 1, 2, 2, 1.317879),
    Sketcher.Constraint("DistanceY", 14, 1, 14, 2, 2.426562),
    Sketcher.Constraint("DistanceY", 23, 2, 23, 1, 0.356861),
    Sketcher.Constraint("DistanceY", 50, 2, 50, 1, 1.982989),
    Sketcher.Constraint("DistanceY", 79, 1, 79, 2, 0.304358),
    Sketcher.Constraint("DistanceY", 86, 2, 86, 1, 0.068451),
    Sketcher.Constraint("DistanceX", -1, 1, 40, 3, 19.832401),
    Sketcher.Constraint("DistanceX", -1, 1, 54, 3, 19.512399),
    Sketcher.Constraint("DistanceX", -1, 1, 40, 2, 19.846798),
    Sketcher.Constraint("DistanceY", -1, 1, 40, 2, 30.064499),
    Sketcher.Constraint("DistanceX", -1, 1, 68, 2, 23.558599),
    Sketcher.Constraint("Distance", 39, 1.615731),
    Sketcher.Constraint("Distance", 48, 1.584342),
    Sketcher.Constraint("DistanceX", 3, 1, 3, 2, 0.670654),
    Sketcher.Constraint("DistanceX", 11, 1, 11, 2, 0.713723),
    Sketcher.Constraint("DistanceX", 22, 2, 22, 1, 4.952994),
    Sketcher.Constraint("DistanceX", 37, 1, 37, 2, 2.583642),
    Sketcher.Constraint("DistanceX", 41, 2, 41, 1, 2.146904),
    Sketcher.Constraint("DistanceX", 46, 2, 46, 1, 1.355835),
    Sketcher.Constraint("DistanceX", 60, 1, 60, 2, 1.728603),
    Sketcher.Constraint("DistanceX", 62, 2, 62, 1, 1.052127),
    Sketcher.Constraint("DistanceX", 84, 1, 84, 2, 1.896703),
    Sketcher.Constraint("DistanceY", 27, 2, 27, 1, 0.363017),
    Sketcher.Constraint("DistanceY", 31, 2, 31, 1, 0.338404),
    Sketcher.Constraint("DistanceY", 36, 1, 36, 2, 1.441926),
    Sketcher.Constraint("DistanceY", 47, 1, 47, 2, 1.555485),
    Sketcher.Constraint("DistanceY", 51, 1, 51, 2, 0.027646),
    Sketcher.Constraint("DistanceY", 63, 1, 63, 2, 0.309326),
    Sketcher.Constraint("DistanceY", 67, 1, 67, 2, 1.173725),
    Sketcher.Constraint("DistanceY", 75, 1, 75, 2, 0.717704),
    Sketcher.Constraint("DistanceX", -1, 1, 0, 3, 20.29553),
    Sketcher.Constraint("DistanceY", -1, 1, 15, 3, 32.30379),
    Sketcher.Constraint("DistanceX", -1, 1, 2, 2, 12.465159),
    Sketcher.Constraint("DistanceY", -1, 1, 2, 2, 29.127229),
    Sketcher.Constraint("DistanceX", -1, 1, 10, 2, 14.747841),
    Sketcher.Constraint("DistanceY", -1, 1, 22, 2, 32.434951),
    Sketcher.Constraint("DistanceY", -1, 1, 30, 2, 30.841379),
    Sketcher.Constraint("DistanceX", -1, 1, 39, 2, 20.141929),
    Sketcher.Constraint("DistanceY", -1, 1, 42, 2, 29.854358),
    Sketcher.Constraint("DistanceX", -1, 1, 45, 2, 20.542978),
    Sketcher.Constraint("DistanceX", -1, 1, 46, 2, 20.63387),
    Sketcher.Constraint("DistanceY", -1, 1, 51, 2, 28.645678),
    Sketcher.Constraint("DistanceX", -1, 1, 59, 2, 17.55851),
    Sketcher.Constraint("DistanceY", -1, 1, 67, 2, 31.200778),
    Sketcher.Constraint("DistanceY", -1, 1, 81, 2, 31.450779),
    Sketcher.Constraint("Distance", 43, 1.565612),
    Sketcher.Constraint("Distance", 44, 0.315644),
    Sketcher.Constraint("Distance", 45, 1.556933),
    Sketcher.Constraint("Distance", 59, 0.676477),
    Sketcher.Constraint("DistanceY", -1, 1, 0, 3, 32.239323),
    Sketcher.Constraint("DistanceX", -1, 1, 1, 3, 23.400045),
    Sketcher.Constraint("DistanceY", -1, 1, 1, 3, 29.277054),
    Sketcher.Constraint("DistanceX", -1, 1, 15, 3, 11.748015),
    Sketcher.Constraint("DistanceX", -1, 1, 34, 3, 14.831495),
    Sketcher.Constraint("DistanceY", -1, 1, 34, 3, 29.911236),
    Sketcher.Constraint("DistanceX", -1, 1, 35, 3, 15.995043),
    Sketcher.Constraint("DistanceX", -1, 1, 38, 3, 20.157675),
    Sketcher.Constraint("DistanceX", -1, 1, 49, 3, 20.557245),
    Sketcher.Constraint("DistanceX", -1, 1, 6, 2, 13.621882),
    Sketcher.Constraint("DistanceX", -1, 1, 22, 2, 11.897682),
    Sketcher.Constraint("DistanceY", -1, 1, 26, 2, 31.665854),
    Sketcher.Constraint("DistanceX", -1, 1, 42, 2, 20.351476),
    Sketcher.Constraint("DistanceX", -1, 1, 63, 2, 22.239705),
    Sketcher.Constraint("DistanceY", -1, 1, 63, 2, 29.435562),
    Sketcher.Constraint("DistanceX", -1, 1, 71, 2, 24.150044),
])
pocket3 = body.newObject("PartDesign::Pocket", "Pocket002")
pocket3.Profile = sketch4
pocket3.Length = 0.001
pocket3.Reversed = True

doc.recompute()
